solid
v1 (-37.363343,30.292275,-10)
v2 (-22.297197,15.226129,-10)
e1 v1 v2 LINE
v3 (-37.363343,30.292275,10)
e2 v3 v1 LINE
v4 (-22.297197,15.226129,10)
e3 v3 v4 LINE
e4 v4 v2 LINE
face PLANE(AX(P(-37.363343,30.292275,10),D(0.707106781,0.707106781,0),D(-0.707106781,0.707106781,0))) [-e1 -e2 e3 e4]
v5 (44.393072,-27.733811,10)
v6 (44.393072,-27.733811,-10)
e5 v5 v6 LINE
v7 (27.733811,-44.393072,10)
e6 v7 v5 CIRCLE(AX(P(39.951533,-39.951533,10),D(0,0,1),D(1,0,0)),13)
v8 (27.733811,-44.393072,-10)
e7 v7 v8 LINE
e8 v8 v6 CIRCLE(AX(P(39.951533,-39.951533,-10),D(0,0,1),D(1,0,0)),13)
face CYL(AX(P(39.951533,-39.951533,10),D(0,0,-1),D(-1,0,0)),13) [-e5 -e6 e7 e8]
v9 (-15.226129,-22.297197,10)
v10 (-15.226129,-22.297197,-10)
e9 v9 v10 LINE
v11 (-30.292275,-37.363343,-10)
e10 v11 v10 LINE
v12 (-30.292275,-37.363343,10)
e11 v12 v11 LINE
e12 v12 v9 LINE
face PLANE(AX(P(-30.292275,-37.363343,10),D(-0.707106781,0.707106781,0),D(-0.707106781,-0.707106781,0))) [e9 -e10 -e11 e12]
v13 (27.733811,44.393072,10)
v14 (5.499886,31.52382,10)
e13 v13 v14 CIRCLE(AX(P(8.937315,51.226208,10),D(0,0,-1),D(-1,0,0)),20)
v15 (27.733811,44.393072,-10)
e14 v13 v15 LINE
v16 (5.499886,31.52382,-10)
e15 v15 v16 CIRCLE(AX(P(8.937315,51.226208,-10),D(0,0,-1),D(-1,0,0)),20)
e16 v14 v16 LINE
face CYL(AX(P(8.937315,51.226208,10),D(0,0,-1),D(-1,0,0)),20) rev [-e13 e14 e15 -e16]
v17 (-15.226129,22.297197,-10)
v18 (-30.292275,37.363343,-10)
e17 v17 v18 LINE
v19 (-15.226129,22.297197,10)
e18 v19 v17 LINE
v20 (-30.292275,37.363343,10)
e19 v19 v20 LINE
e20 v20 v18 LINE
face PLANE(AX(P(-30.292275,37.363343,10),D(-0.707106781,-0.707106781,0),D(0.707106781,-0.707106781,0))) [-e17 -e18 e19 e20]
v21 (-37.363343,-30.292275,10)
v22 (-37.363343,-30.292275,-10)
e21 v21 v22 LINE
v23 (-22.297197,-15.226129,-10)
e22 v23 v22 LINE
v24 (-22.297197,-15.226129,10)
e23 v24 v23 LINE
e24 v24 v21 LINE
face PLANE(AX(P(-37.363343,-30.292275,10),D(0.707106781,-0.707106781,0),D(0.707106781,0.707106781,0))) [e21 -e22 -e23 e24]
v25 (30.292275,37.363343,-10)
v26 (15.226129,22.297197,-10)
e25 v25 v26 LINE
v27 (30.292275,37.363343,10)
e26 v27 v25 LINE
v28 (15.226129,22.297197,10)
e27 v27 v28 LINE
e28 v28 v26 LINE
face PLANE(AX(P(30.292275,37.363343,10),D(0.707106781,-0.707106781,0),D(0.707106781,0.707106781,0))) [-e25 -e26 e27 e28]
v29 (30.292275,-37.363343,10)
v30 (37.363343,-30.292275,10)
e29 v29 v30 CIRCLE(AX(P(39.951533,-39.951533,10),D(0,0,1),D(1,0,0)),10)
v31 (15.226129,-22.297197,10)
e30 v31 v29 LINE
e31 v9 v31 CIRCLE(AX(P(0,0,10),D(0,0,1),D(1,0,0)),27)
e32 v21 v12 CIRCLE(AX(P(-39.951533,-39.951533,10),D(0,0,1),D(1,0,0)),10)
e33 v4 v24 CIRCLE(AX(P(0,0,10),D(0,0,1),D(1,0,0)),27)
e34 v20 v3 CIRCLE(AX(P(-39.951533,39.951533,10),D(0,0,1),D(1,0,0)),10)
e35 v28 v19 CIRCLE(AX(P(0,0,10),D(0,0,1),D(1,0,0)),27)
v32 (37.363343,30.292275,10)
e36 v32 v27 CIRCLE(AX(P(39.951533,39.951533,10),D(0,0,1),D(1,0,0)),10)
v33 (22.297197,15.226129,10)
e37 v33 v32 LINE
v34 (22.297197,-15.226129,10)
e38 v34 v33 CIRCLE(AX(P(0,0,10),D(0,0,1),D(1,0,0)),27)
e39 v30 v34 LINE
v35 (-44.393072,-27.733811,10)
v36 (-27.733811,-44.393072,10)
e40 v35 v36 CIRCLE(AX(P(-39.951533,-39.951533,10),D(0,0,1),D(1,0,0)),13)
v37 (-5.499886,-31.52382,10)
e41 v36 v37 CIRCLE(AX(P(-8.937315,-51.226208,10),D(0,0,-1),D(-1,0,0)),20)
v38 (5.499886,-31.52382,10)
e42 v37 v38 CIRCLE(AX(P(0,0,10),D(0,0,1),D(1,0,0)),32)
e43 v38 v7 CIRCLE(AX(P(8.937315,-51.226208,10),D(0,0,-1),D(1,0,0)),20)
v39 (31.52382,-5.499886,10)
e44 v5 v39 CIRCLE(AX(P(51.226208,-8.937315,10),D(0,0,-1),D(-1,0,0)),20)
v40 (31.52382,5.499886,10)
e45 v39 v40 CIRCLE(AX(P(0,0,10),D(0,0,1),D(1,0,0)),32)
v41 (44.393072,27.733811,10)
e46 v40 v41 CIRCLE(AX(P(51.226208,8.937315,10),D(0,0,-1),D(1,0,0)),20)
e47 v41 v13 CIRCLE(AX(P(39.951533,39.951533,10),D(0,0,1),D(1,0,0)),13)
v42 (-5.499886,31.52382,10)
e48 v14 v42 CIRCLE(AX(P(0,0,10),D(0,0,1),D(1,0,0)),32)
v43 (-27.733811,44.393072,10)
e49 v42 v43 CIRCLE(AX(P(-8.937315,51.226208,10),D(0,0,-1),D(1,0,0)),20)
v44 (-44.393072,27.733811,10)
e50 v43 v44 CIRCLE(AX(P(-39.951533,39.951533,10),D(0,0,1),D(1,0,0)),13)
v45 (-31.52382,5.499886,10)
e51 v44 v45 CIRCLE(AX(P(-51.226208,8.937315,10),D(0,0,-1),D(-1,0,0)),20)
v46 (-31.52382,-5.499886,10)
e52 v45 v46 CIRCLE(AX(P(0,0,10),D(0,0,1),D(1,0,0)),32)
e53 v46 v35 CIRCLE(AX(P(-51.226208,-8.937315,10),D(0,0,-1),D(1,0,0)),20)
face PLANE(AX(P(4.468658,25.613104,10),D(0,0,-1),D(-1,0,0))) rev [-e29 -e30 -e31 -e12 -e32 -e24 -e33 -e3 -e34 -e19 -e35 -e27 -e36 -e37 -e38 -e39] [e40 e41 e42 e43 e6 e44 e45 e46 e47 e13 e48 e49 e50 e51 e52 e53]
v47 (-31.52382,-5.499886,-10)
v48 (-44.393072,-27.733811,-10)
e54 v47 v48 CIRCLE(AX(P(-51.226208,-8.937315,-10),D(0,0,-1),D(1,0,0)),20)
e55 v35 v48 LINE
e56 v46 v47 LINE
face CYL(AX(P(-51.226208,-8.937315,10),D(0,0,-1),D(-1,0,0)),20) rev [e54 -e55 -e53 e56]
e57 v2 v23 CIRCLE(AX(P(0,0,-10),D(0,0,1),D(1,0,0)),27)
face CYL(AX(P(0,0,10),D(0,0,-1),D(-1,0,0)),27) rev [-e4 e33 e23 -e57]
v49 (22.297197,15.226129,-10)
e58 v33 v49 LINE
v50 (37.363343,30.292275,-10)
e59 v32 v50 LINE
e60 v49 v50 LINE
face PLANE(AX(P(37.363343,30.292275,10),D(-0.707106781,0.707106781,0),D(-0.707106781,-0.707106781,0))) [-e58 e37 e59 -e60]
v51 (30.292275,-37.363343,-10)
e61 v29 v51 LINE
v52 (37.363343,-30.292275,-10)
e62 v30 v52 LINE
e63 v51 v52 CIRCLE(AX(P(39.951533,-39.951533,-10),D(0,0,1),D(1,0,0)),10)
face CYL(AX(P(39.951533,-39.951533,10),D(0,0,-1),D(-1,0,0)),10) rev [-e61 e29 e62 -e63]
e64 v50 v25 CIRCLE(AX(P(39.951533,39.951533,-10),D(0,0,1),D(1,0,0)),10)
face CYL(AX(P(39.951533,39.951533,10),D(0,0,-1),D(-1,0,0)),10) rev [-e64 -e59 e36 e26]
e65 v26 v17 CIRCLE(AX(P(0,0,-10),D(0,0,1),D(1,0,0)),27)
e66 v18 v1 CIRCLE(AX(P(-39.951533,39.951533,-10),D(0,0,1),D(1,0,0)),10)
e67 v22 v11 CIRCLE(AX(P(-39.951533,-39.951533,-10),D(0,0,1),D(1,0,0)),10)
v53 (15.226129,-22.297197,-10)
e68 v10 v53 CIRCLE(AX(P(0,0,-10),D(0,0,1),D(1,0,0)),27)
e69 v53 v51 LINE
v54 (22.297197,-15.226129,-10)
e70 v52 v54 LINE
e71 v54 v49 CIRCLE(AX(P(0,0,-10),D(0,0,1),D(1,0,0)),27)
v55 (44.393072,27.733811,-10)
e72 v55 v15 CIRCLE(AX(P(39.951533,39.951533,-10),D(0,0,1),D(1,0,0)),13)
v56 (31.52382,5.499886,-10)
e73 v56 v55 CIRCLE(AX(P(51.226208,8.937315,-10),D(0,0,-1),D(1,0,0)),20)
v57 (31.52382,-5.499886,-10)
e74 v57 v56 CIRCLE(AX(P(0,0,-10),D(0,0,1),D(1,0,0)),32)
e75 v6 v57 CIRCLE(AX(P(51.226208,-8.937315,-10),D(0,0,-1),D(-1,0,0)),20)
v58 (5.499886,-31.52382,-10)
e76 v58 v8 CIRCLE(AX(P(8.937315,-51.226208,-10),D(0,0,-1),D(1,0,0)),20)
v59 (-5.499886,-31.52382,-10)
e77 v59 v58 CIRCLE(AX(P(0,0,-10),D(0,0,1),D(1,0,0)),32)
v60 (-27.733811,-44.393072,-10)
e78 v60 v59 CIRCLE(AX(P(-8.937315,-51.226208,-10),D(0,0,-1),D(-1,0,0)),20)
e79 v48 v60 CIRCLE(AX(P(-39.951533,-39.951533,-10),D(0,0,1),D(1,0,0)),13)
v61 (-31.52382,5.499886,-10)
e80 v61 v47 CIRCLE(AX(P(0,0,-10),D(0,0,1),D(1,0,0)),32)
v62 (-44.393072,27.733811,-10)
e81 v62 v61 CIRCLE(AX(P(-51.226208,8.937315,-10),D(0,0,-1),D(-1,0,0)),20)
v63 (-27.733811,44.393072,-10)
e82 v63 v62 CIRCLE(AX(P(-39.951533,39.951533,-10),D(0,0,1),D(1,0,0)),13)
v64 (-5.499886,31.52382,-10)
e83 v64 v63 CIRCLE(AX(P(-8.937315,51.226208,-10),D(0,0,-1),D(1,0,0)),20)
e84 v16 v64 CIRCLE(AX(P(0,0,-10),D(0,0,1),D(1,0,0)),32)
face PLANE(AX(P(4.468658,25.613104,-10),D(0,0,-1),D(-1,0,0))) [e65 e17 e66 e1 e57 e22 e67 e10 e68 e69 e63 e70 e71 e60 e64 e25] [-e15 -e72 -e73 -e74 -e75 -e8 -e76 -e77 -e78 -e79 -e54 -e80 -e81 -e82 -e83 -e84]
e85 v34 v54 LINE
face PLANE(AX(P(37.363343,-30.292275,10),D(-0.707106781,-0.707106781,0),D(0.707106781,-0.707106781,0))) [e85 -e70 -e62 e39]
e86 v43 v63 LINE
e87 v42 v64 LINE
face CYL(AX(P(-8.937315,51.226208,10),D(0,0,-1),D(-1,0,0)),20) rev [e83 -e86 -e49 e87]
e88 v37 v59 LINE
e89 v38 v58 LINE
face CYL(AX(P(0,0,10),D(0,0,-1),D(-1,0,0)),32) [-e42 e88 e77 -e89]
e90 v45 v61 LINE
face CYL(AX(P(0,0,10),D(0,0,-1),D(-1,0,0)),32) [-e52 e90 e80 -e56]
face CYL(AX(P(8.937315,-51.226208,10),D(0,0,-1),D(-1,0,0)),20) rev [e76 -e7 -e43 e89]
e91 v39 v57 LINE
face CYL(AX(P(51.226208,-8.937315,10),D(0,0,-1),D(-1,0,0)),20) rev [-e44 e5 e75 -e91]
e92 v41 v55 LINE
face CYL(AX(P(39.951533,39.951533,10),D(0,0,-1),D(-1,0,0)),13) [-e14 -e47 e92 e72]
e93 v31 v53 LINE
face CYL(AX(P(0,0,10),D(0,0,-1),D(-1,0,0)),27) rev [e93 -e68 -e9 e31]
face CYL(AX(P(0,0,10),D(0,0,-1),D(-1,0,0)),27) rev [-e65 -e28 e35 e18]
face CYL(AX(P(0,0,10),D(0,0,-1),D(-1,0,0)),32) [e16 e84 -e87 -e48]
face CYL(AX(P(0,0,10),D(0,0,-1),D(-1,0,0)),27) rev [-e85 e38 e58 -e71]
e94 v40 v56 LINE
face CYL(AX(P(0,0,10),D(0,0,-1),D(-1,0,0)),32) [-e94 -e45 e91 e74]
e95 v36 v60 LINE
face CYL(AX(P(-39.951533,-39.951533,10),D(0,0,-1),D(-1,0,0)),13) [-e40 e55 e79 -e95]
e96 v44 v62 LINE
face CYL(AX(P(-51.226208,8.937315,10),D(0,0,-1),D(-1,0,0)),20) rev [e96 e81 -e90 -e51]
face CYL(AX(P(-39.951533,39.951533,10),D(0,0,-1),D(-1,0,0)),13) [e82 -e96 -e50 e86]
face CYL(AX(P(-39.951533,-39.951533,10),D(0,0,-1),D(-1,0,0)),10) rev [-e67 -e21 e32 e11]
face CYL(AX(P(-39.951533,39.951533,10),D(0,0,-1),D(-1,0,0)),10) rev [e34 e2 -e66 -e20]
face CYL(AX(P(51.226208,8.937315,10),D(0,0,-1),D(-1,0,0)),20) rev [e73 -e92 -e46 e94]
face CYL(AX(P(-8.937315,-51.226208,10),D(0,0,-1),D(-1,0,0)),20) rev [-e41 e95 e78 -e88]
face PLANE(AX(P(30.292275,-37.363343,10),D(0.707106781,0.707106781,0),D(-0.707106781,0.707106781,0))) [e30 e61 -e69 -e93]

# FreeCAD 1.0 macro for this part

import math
import FreeCAD as App
import Part
import Sketcher
from FreeCAD import Vector
Q = App.Units.Quantity

doc = App.newDocument("Part")
body = doc.addObject("PartDesign::Body", "Body")

sketch1 = body.newObject("Sketcher::SketchObject", "Sketch")
sketch1.AttachmentSupport = (doc.getObject("XY_Plane"), [""])
sketch1.MapMode = "FlatFace"
sketch1.addGeometry([
    Part.ArcOfCircle(Part.Circle(Vector(0, 0, 0), Vector(0, 0, 1), 32), math.radians(80.1), math.radians(99.9)),
    Part.ArcOfCircle(Part.Circle(Vector(-9, 51, 0), Vector(0, 0, 1), 20), math.radians(-160), math.radians(-80)),
    Part.ArcOfCircle(Part.Circle(Vector(-40, 40, 0), Vector(0, 0, 1), 13), math.radians(20), math.radians(250)),
    Part.ArcOfCircle(Part.Circle(Vector(-51, 9, 0), Vector(0, 0, 1), 20), math.radians(-10), math.radians(70)),
    Part.ArcOfCircle(Part.Circle(Vector(0, 0, 0), Vector(0, 0, 1), 32), math.radians(170.1), math.radians(189.9)),
    Part.ArcOfCircle(Part.Circle(Vector(-51, -9, 0), Vector(0, 0, 1), 20), math.radians(-70), math.radians(10)),
    Part.ArcOfCircle(Part.Circle(Vector(-40, -40, 0), Vector(0, 0, 1), 13), math.radians(110), math.radians(340)),
    Part.ArcOfCircle(Part.Circle(Vector(-9, -51, 0), Vector(0, 0, 1), 20), math.radians(80), math.radians(160)),
    Part.ArcOfCircle(Part.Circle(Vector(0, 0, 0), Vector(0, 0, 1), 32), math.radians(-99.9), math.radians(-80.1)),
    Part.ArcOfCircle(Part.Circle(Vector(9, -51, 0), Vector(0, 0, 1), 20), math.radians(20), math.radians(100)),
    Part.ArcOfCircle(Part.Circle(Vector(40, -40, 0), Vector(0, 0, 1), 13), math.radians(-160), math.radians(70)),
    Part.ArcOfCircle(Part.Circle(Vector(51, -9, 0), Vector(0, 0, 1), 20), math.radians(170), math.radians(250)),
    Part.ArcOfCircle(Part.Circle(Vector(0, 0, 0), Vector(0, 0, 1), 32), math.radians(-9.9), math.radians(9.9)),
    Part.ArcOfCircle(Part.Circle(Vector(51, 9, 0), Vector(0, 0, 1), 20), math.radians(110), math.radians(190)),
    Part.ArcOfCircle(Part.Circle(Vector(40, 40, 0), Vector(0, 0, 1), 13), math.radians(-70), math.radians(160)),
    Part.ArcOfCircle(Part.Circle(Vector(9, 51, 0), Vector(0, 0, 1), 20), math.radians(-100), math.radians(-20)),
    Part.ArcOfCircle(Part.Circle(Vector(40, 40, 0), Vector(0, 0, 1), 10), math.radians(-105), math.radians(195)),
    Part.LineSegment(Vector(37, 30, 0), Vector(22, 15, 0)),
    Part.ArcOfCircle(Part.Circle(Vector(0, 0, 0), Vector(0, 0, 1), 27), math.radians(-34), math.radians(34)),
    Part.LineSegment(Vector(22, -15, 0), Vector(37, -30, 0)),
    Part.ArcOfCircle(Part.Circle(Vector(40, -40, 0), Vector(0, 0, 1), 10), math.radians(165), math.radians(465)),
    Part.LineSegment(Vector(30, -37, 0), Vector(15, -22, 0)),
    Part.ArcOfCircle(Part.Circle(Vector(0, 0, 0), Vector(0, 0, 1), 27), math.radians(-124), math.radians(-56)),
    Part.LineSegment(Vector(-15, -22, 0), Vector(-30, -37, 0)),
    Part.ArcOfCircle(Part.Circle(Vector(-40, -40, 0), Vector(0, 0, 1), 10), math.radians(75), math.radians(375)),
    Part.LineSegment(Vector(-37, -30, 0), Vector(-22, -15, 0)),
    Part.ArcOfCircle(Part.Circle(Vector(0, 0, 0), Vector(0, 0, 1), 27), math.radians(146), math.radians(214)),
    Part.LineSegment(Vector(-22, 15, 0), Vector(-37, 30, 0)),
    Part.ArcOfCircle(Part.Circle(Vector(-40, 40, 0), Vector(0, 0, 1), 10), math.radians(-15), math.radians(285)),
    Part.LineSegment(Vector(-30, 37, 0), Vector(-15, 22, 0)),
    Part.ArcOfCircle(Part.Circle(Vector(0, 0, 0), Vector(0, 0, 1), 27), math.radians(56), math.radians(124)),
    Part.LineSegment(Vector(15, 22, 0), Vector(30, 37, 0)),
], False)
sketch1.addConstraint([
    Sketcher.Constraint("Tangent", 0, 2, 1, 2),
    Sketcher.Constraint("Tangent", 1, 1, 2, 1),
    Sketcher.Constraint("Tangent", 2, 2, 3, 2),
    Sketcher.Constraint("Tangent", 3, 1, 4, 1),
    Sketcher.Constraint("Tangent", 4, 2, 5, 2),
    Sketcher.Constraint("Tangent", 5, 1, 6, 1),
    Sketcher.Constraint("Tangent", 6, 2, 7, 2),
    Sketcher.Constraint("Tangent", 7, 1, 8, 1),
    Sketcher.Constraint("Tangent", 8, 2, 9, 2),
    Sketcher.Constraint("Tangent", 9, 1, 10, 1),
    Sketcher.Constraint("Tangent", 10, 2, 11, 2),
    Sketcher.Constraint("Tangent", 11, 1, 12, 1),
    Sketcher.Constraint("Tangent", 12, 2, 13, 2),
    Sketcher.Constraint("Tangent", 13, 1, 14, 1),
    Sketcher.Constraint("Tangent", 14, 2, 15, 2),
    Sketcher.Constraint("Tangent", 15, 1, 0, 1),
    Sketcher.Constraint("Coincident", 16, 1, 17, 1),
    Sketcher.Constraint("Coincident", 17, 2, 18, 2),
    Sketcher.Constraint("Coincident", 18, 1, 19, 1),
    Sketcher.Constraint("Coincident", 19, 2, 20, 2),
    Sketcher.Constraint("Coincident", 20, 1, 21, 1),
    Sketcher.Constraint("Coincident", 21, 2, 22, 2),
    Sketcher.Constraint("Coincident", 22, 1, 23, 1),
    Sketcher.Constraint("Coincident", 23, 2, 24, 2),
    Sketcher.Constraint("Coincident", 24, 1, 25, 1),
    Sketcher.Constraint("Coincident", 25, 2, 26, 2),
    Sketcher.Constraint("Coincident", 26, 1, 27, 1),
    Sketcher.Constraint("Coincident", 27, 2, 28, 2),
    Sketcher.Constraint("Coincident", 28, 1, 29, 1),
    Sketcher.Constraint("Coincident", 29, 2, 30, 2),
    Sketcher.Constraint("Coincident", 30, 1, 31, 1),
    Sketcher.Constraint("Coincident", 31, 2, 16, 2),
    Sketcher.Constraint("Coincident", 0, 3, -1, 1),
    Sketcher.Constraint("Coincident", 4, 3, -1, 1),
    Sketcher.Constraint("Coincident", 8, 3, -1, 1),
    Sketcher.Constraint("Coincident", 12, 3, -1, 1),
    Sketcher.Constraint("Coincident", 18, 3, -1, 1),
    Sketcher.Constraint("Coincident", 22, 3, -1, 1),
    Sketcher.Constraint("Coincident", 26, 3, -1, 1),
    Sketcher.Constraint("Coincident", 30, 3, -1, 1),
    Sketcher.Constraint("Coincident", 16, 3, 14, 3),
    Sketcher.Constraint("Coincident", 20, 3, 10, 3),
    Sketcher.Constraint("Coincident", 24, 3, 6, 3),
    Sketcher.Constraint("Coincident", 28, 3, 2, 3),
    Sketcher.Constraint("Equal", 1, 3),
    Sketcher.Constraint("Equal", 0, 4),
    Sketcher.Constraint("Equal", 3, 5),
    Sketcher.Constraint("Equal", 2, 6),
    Sketcher.Constraint("Equal", 5, 7),
    Sketcher.Constraint("Equal", 4, 8),
    Sketcher.Constraint("Equal", 7, 9),
    Sketcher.Constraint("Equal", 6, 10),
    Sketcher.Constraint("Equal", 9, 11),
    Sketcher.Constraint("Equal", 8, 12),
    Sketcher.Constraint("Equal", 11, 13),
    Sketcher.Constraint("Equal", 10, 14),
    Sketcher.Constraint("Equal", 13, 15),
    Sketcher.Constraint("Equal", 16, 20),
    Sketcher.Constraint("Equal", 18, 22),
    Sketcher.Constraint("Equal", 20, 24),
    Sketcher.Constraint("Equal", 22, 26),
    Sketcher.Constraint("Equal", 24, 28),
    Sketcher.Constraint("Equal", 26, 30),
    Sketcher.Constraint("Symmetric", 2, 3, 10, 3, -1, 1),
    Sketcher.Constraint("Symmetric", 6, 3, 14, 3, -1, 1),
    Sketcher.Constraint("Symmetric", 6, 3, 10, 3, -2),
    Sketcher.Constraint("Perpendicular", 17, 19),
    Sketcher.Constraint("Parallel", 19, 21),
    Sketcher.Constraint("Perpendicular", 21, 23),
    Sketcher.Constraint("Parallel", 23, 25),
    Sketcher.Constraint("Perpendicular", 25, 27),
    Sketcher.Constraint("Parallel", 27, 29),
    Sketcher.Constraint("Perpendicular", 29, 31),
    Sketcher.Constraint("Horizontal", 21, 2, 22, 1),
    Sketcher.Constraint("Horizontal", 20, 1, 23, 2),
    Sketcher.Constraint("Horizontal", 19, 2, 24, 1),
    Sketcher.Constraint("Horizontal", 17, 2, 26, 1),
    Sketcher.Constraint("Horizontal", 29, 2, 30, 1),
    Sketcher.Constraint("Vertical", 17, 2, 18, 1),
    Sketcher.Constraint("Vertical", 23, 2, 28, 1),
    Sketcher.Constraint("Equal", 19, 21),
    Sketcher.Constraint("Radius", 0, Q("32 mm")),
    Sketcher.Constraint("Radius", 1, Q("20 mm")),
    Sketcher.Constraint("Radius", 2, Q("13 mm")),
    Sketcher.Constraint("Radius", 16, Q("10 mm")),
    Sketcher.Constraint("Radius", 18, Q("27 mm")),
    Sketcher.Constraint("DistanceX", 0, 2, 15, 3, Q("14.437202 mm")),
    Sketcher.Constraint("DistanceY", 5, 3, 3, 1, Q("14.437202 mm")),
    Sketcher.Constraint("DistanceY", -1, 1, 17, 2, Q("15.226129 mm")),
])
pad1 = body.newObject("PartDesign::Pad", "Pad")
pad1.Profile = sketch1
pad1.Length = 20
pad1.Midplane = True

doc.recompute()
